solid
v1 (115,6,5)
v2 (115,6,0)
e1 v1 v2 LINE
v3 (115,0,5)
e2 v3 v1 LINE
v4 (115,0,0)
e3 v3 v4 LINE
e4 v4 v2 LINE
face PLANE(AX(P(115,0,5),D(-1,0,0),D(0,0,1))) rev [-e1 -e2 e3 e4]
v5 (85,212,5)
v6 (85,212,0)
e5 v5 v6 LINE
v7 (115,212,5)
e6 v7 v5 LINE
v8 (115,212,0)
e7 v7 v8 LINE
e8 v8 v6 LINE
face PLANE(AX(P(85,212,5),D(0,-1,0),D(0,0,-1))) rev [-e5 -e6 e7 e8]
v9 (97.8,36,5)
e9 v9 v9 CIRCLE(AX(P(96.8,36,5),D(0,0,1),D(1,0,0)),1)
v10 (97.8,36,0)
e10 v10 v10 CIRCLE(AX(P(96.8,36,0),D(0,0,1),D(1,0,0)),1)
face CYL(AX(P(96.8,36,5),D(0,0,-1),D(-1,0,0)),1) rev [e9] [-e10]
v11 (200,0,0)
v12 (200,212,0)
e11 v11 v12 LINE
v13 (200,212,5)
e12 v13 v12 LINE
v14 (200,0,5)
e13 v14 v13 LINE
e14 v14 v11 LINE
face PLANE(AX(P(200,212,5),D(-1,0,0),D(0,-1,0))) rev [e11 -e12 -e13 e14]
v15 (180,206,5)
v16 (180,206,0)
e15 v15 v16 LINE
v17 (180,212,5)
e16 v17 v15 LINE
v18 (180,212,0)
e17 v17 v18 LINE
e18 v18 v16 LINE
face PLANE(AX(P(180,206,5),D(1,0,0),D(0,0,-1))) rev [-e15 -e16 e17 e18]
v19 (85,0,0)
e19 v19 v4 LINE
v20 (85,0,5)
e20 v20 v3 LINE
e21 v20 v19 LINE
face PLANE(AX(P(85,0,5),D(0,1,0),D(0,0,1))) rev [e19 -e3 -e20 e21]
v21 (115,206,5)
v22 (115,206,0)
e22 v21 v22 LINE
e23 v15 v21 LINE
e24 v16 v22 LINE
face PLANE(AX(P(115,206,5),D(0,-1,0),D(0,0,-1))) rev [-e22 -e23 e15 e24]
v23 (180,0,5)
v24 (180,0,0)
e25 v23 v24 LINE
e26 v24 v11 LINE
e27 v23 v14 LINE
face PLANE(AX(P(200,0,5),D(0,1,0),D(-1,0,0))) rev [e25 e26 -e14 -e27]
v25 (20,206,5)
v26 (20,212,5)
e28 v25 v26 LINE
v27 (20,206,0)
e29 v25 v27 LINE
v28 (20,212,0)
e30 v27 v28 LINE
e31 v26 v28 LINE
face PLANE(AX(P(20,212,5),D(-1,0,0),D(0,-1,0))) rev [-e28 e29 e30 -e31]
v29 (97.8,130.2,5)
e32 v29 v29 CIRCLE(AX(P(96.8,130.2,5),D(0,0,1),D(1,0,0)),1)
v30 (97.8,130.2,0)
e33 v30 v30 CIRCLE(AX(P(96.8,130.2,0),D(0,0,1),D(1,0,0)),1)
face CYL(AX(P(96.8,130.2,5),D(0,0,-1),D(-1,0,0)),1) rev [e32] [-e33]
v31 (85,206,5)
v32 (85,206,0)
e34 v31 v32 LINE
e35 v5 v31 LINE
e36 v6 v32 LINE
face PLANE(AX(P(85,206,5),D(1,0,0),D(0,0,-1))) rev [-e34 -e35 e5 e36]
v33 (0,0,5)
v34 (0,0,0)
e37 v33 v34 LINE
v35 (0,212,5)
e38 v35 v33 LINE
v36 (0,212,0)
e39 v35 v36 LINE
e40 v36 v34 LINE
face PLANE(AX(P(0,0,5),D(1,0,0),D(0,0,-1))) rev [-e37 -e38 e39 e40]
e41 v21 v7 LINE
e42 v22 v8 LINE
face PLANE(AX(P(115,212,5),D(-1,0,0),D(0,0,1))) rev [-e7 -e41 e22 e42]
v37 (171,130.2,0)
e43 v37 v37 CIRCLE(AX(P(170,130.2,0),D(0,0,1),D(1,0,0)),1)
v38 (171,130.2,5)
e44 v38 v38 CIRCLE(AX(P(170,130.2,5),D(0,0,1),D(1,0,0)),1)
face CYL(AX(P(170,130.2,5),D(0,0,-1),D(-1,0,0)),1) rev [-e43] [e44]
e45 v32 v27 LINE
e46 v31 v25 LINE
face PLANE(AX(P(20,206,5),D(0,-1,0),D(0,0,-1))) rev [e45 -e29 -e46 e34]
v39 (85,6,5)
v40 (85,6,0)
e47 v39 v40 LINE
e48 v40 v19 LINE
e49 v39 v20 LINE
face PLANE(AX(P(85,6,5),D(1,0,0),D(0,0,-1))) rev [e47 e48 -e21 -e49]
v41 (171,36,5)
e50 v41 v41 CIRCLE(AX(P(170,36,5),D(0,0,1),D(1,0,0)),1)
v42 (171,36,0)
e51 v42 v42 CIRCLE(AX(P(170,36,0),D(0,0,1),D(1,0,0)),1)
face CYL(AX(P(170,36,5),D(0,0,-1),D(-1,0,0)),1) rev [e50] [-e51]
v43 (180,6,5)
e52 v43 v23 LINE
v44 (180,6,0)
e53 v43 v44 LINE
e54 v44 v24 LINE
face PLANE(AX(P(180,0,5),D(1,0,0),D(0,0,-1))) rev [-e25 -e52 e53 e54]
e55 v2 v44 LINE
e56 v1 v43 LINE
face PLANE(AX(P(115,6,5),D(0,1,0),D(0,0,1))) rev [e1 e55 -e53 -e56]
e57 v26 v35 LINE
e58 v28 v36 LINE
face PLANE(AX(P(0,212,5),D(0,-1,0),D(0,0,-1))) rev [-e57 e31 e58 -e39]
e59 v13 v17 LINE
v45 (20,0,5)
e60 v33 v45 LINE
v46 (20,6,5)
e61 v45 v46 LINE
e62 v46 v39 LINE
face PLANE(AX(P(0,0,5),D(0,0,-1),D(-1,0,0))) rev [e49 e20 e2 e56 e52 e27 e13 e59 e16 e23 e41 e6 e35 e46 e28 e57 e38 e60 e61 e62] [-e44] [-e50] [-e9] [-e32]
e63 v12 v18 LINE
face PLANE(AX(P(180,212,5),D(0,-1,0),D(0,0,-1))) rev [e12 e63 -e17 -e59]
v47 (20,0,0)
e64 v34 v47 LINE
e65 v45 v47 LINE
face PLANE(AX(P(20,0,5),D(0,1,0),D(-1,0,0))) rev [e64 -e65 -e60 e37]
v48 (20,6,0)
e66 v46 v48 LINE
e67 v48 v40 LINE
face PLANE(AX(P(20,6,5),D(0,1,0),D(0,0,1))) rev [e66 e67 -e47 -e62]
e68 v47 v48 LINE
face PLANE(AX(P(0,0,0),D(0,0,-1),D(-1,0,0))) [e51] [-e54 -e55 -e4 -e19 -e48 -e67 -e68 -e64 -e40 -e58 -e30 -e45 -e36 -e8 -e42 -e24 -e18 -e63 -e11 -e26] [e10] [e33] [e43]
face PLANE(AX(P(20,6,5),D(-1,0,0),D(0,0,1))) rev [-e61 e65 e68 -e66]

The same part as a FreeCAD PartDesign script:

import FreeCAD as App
import Part
import Sketcher
from FreeCAD import Vector


def add_polygon(sketch, points):
    """Adds a closed chain of lines whose ends are joined by coincident constraints."""
    first, n = sketch.GeometryCount, len(points)
    for a, b in zip(points, points[1:] + points[:1]):
        sketch.addGeometry(Part.LineSegment(App.Vector(*a, 0), App.Vector(*b, 0)), False)
    for i in range(n):
        sketch.addConstraint(Sketcher.Constraint("Coincident", first + i, 2, first + (i + 1) % n, 1))

doc = App.newDocument("Part")
body = doc.addObject("PartDesign::Body", "Body")

# Sketch on XY plane
sketch1 = doc.addObject("Sketcher::SketchObject", "Sketch")
body.addObject(sketch1)
sketch1.AttachmentSupport = (doc.XY_Plane, [""])
sketch1.MapMode = "FlatFace"
add_polygon(sketch1, [(0, 212), (0, 0), (20, 0), (20, 6), (85, 6), (85, 0), (115, 0), (115, 6), (180, 6), (180, 0), (200, 0), (200, 212), (180, 212), (180, 206), (115, 206), (115, 212), (85, 212), (85, 206), (20, 206), (20, 212)])  # lines 0-19
sketch1.addGeometry(Part.Circle(Vector(170, 36, 0), Vector(0, 0, 1), 1), False)  # 20
sketch1.addGeometry(Part.Circle(Vector(96.8, 36, 0), Vector(0, 0, 1), 1), False)  # 21
sketch1.addGeometry(Part.Circle(Vector(170, 130.2, 0), Vector(0, 0, 1), 1), False)  # 22
sketch1.addGeometry(Part.Circle(Vector(96.8, 130.2, 0), Vector(0, 0, 1), 1), False)  # 23
sketch1.addConstraint(Sketcher.Constraint("Vertical", 0))
sketch1.addConstraint(Sketcher.Constraint("Horizontal", 1))
sketch1.addConstraint(Sketcher.Constraint("Vertical", 2))
sketch1.addConstraint(Sketcher.Constraint("Horizontal", 3))
sketch1.addConstraint(Sketcher.Constraint("Vertical", 4))
sketch1.addConstraint(Sketcher.Constraint("Horizontal", 5))
sketch1.addConstraint(Sketcher.Constraint("Vertical", 6))
sketch1.addConstraint(Sketcher.Constraint("Horizontal", 7))
sketch1.addConstraint(Sketcher.Constraint("Vertical", 8))
sketch1.addConstraint(Sketcher.Constraint("Horizontal", 9))
sketch1.addConstraint(Sketcher.Constraint("Vertical", 10))
sketch1.addConstraint(Sketcher.Constraint("Horizontal", 11))
sketch1.addConstraint(Sketcher.Constraint("Vertical", 12))
sketch1.addConstraint(Sketcher.Constraint("Horizontal", 13))
sketch1.addConstraint(Sketcher.Constraint("Vertical", 14))
sketch1.addConstraint(Sketcher.Constraint("Horizontal", 15))
sketch1.addConstraint(Sketcher.Constraint("Vertical", 16))
sketch1.addConstraint(Sketcher.Constraint("Horizontal", 17))
sketch1.addConstraint(Sketcher.Constraint("Vertical", 18))
sketch1.addConstraint(Sketcher.Constraint("Horizontal", 19))
sketch1.addConstraint(Sketcher.Constraint("Coincident", 0, 2, -1, 1))
sketch1.addConstraint(Sketcher.Constraint("Equal", 20, 21))
sketch1.addConstraint(Sketcher.Constraint("Equal", 21, 22))
sketch1.addConstraint(Sketcher.Constraint("Equal", 22, 23))
sketch1.addConstraint(Sketcher.Constraint("PointOnObject", 4, 2, -1))
sketch1.addConstraint(Sketcher.Constraint("PointOnObject", 8, 2, -1))
sketch1.addConstraint(Sketcher.Constraint("Horizontal", 20, 3, 21, 3))
sketch1.addConstraint(Sketcher.Constraint("Horizontal", 22, 3, 23, 3))
sketch1.addConstraint(Sketcher.Constraint("Horizontal", 3, 2, 6, 2))
sketch1.addConstraint(Sketcher.Constraint("Horizontal", 11, 2, 14, 2))
sketch1.addConstraint(Sketcher.Constraint("Horizontal", 13, 2, 16, 2))
sketch1.addConstraint(Sketcher.Constraint("Horizontal", 15, 2, 18, 2))
sketch1.addConstraint(Sketcher.Constraint("Vertical", 20, 3, 22, 3))
sketch1.addConstraint(Sketcher.Constraint("Vertical", 21, 3, 23, 3))
sketch1.addConstraint(Sketcher.Constraint("Vertical", 8, 2, 11, 2))
sketch1.addConstraint(Sketcher.Constraint("Vertical", 6, 2, 13, 2))
sketch1.addConstraint(Sketcher.Constraint("Vertical", 4, 2, 15, 2))
sketch1.addConstraint(Sketcher.Constraint("Vertical", 2, 2, 17, 2))
sketch1.addConstraint(Sketcher.Constraint("Equal", 3, 7))
sketch1.addConstraint(Sketcher.Constraint("Equal", 1, 9))
sketch1.addConstraint(Sketcher.Constraint("Equal", 8, 12))
sketch1.addConstraint(Sketcher.Constraint("Diameter", 20, 2.0))
sketch1.addConstraint(Sketcher.Constraint("DistanceX", 1, 1, 1, 2, 20.0))
sketch1.addConstraint(Sketcher.Constraint("DistanceX", 3, 1, 3, 2, 65.0))
sketch1.addConstraint(Sketcher.Constraint("DistanceX", 5, 1, 5, 2, 30.0))
sketch1.addConstraint(Sketcher.Constraint("DistanceY", 0, 2, 0, 1, 212.0))
sketch1.addConstraint(Sketcher.Constraint("DistanceY", 2, 1, 2, 2, 6.0))
sketch1.addConstraint(Sketcher.Constraint("DistanceX", -1, 1, 20, 3, 170.0))
sketch1.addConstraint(Sketcher.Constraint("DistanceY", -1, 1, 20, 3, 36.0))
sketch1.addConstraint(Sketcher.Constraint("DistanceX", -1, 1, 21, 3, 96.8))
sketch1.addConstraint(Sketcher.Constraint("DistanceY", -1, 1, 22, 3, 130.2))
pad1 = doc.addObject("PartDesign::Pad", "Pad")
body.addObject(pad1)
pad1.Profile = sketch1
pad1.Length = 5

doc.recompute()
